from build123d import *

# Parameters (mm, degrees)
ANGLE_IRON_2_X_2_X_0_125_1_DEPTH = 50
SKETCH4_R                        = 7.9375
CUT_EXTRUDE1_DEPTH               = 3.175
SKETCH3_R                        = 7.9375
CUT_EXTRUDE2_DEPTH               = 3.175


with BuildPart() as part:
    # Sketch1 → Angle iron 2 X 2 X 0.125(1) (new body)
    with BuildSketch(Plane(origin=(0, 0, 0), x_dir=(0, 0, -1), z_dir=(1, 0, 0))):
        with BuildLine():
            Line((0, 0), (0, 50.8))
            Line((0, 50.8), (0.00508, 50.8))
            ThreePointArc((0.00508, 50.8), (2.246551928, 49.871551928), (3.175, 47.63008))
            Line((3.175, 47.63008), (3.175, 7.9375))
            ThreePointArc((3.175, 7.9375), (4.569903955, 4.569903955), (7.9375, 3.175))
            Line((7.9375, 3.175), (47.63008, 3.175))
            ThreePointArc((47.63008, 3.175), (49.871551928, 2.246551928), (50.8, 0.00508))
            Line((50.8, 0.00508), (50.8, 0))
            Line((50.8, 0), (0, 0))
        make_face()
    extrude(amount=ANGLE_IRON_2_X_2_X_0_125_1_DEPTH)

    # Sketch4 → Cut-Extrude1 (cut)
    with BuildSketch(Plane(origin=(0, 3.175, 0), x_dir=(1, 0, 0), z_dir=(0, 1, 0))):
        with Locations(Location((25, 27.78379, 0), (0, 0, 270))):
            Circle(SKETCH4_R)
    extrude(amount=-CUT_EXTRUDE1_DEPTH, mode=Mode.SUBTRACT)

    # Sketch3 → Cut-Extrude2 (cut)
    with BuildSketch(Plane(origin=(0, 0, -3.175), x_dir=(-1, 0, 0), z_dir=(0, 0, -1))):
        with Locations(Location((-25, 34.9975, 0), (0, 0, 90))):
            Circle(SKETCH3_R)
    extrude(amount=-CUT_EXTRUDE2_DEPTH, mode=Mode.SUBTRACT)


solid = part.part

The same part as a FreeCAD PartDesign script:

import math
import FreeCAD as App
import Part
import Sketcher

V = App.Vector
Q = App.Units.Quantity

doc = App.newDocument("Part")
body = doc.addObject("PartDesign::Body", "Body")

sketch1 = body.newObject("Sketcher::SketchObject", "Sketch")
sketch1.AttachmentSupport = (doc.getObject("YZ_Plane"), [""])
sketch1.MapMode = "FlatFace"
sketch1.addGeometry([
    Part.LineSegment(V(50.8, 0, 0), V(0, 0, 0)),
    Part.LineSegment(V(0, 0, 0), V(0, -50.8, 0)),
    Part.LineSegment(V(0, -50.8, 0), V(0.00508, -50.8, 0)),
    Part.ArcOfCircle(Part.Circle(V(0.00508, -47.63008, 0), V(0, 0, 1), 3.16992), math.radians(-90), math.radians(0)),
    Part.LineSegment(V(3.175, -47.63008, 0), V(3.175, -7.9375, 0)),
    Part.ArcOfCircle(Part.Circle(V(7.9375, -7.9375, 0), V(0, 0, 1), 4.7625), math.radians(90), math.radians(180)),
    Part.LineSegment(V(7.9375, -3.175, 0), V(47.63008, -3.175, 0)),
    Part.ArcOfCircle(Part.Circle(V(47.63008, -0.00508, 0), V(0, 0, 1), 3.16992), math.radians(-90), math.radians(0)),
    Part.LineSegment(V(50.8, -0.00508, 0), V(50.8, 0, 0)),
], False)
sketch1.addConstraint([
    Sketcher.Constraint("Coincident", 0, 2, 1, 1),
    Sketcher.Constraint("Coincident", 1, 2, 2, 1),
    Sketcher.Constraint("Tangent", 2, 2, 3, 1),
    Sketcher.Constraint("Tangent", 3, 2, 4, 1),
    Sketcher.Constraint("Tangent", 4, 2, 5, 2),
    Sketcher.Constraint("Tangent", 5, 1, 6, 1),
    Sketcher.Constraint("Tangent", 6, 2, 7, 1),
    Sketcher.Constraint("Tangent", 7, 2, 8, 1),
    Sketcher.Constraint("Coincident", 8, 2, 0, 1),
    Sketcher.Constraint("Horizontal", 0),
    Sketcher.Constraint("Vertical", 1),
    Sketcher.Constraint("Vertical", 4),
    Sketcher.Constraint("Horizontal", 6),
    Sketcher.Constraint("Coincident", 0, 2, -1, 1),
    Sketcher.Constraint("Equal", 3, 7),
    Sketcher.Constraint("Vertical", 3, 3, 2, 2),
    Sketcher.Constraint("Equal", 0, 1),
    Sketcher.Constraint("Equal", 6, 4),
    Sketcher.Constraint("Equal", 2, 8),
    Sketcher.Constraint("DistanceX", 0, 2, 0, 1, Q("2 in")),
    Sketcher.Constraint("Radius", 5, Q("0.1875 in")),
    Sketcher.Constraint("Radius", 3, Q("0.1248 in")),
    Sketcher.Constraint("DistanceX", 2, 1, 2, 2, Q("0.0002 in")),
])
pad1 = body.newObject("PartDesign::Pad", "Pad")
pad1.Profile = sketch1
pad1.Length = 50

sketch2 = body.newObject("Sketcher::SketchObject", "Sketch001")
sketch2.AttachmentSupport = (doc.getObject("XZ_Plane"), [""])
sketch2.MapMode = "FlatFace"
sketch2.AttachmentOffset = App.Placement(V(0, 0, -0.125 * 25.4), App.Rotation())
sketch2.addGeometry(Part.Circle(V(25, -27.78379, 0), V(0, 0, 1), 7.9375), False)
sketch2.addConstraint([
    Sketcher.Constraint("Diameter", 0, Q("0.625 in")),
    Sketcher.Constraint("DistanceX", -1, 1, 0, 3, 25.0),
    Sketcher.Constraint("DistanceY", 0, 3, -1, 1, 27.78379),
])
pocket1 = body.newObject("PartDesign::Pocket", "Pocket")
pocket1.Profile = sketch2
pocket1.Length = Q("0.125 in")
pocket1.Reversed = True

sketch3 = body.newObject("Sketcher::SketchObject", "Sketch002")
sketch3.AttachmentSupport = (doc.getObject("XY_Plane"), [""])
sketch3.MapMode = "FlatFace"
sketch3.AttachmentOffset = App.Placement(V(0, 0, -0.125 * 25.4), App.Rotation())
sketch3.addGeometry(Part.Circle(V(25, 34.9975, 0), V(0, 0, 1), 7.9375), False)
sketch3.addConstraint([
    Sketcher.Constraint("Diameter", 0, Q("0.625 in")),
    Sketcher.Constraint("DistanceX", -1, 1, 0, 3, 25.0),
    Sketcher.Constraint("DistanceY", -1, 1, 0, 3, 34.9975),
])
pocket2 = body.newObject("PartDesign::Pocket", "Pocket001")
pocket2.Profile = sketch3
pocket2.Length = Q("0.125 in")
pocket2.Reversed = True

doc.recompute()
